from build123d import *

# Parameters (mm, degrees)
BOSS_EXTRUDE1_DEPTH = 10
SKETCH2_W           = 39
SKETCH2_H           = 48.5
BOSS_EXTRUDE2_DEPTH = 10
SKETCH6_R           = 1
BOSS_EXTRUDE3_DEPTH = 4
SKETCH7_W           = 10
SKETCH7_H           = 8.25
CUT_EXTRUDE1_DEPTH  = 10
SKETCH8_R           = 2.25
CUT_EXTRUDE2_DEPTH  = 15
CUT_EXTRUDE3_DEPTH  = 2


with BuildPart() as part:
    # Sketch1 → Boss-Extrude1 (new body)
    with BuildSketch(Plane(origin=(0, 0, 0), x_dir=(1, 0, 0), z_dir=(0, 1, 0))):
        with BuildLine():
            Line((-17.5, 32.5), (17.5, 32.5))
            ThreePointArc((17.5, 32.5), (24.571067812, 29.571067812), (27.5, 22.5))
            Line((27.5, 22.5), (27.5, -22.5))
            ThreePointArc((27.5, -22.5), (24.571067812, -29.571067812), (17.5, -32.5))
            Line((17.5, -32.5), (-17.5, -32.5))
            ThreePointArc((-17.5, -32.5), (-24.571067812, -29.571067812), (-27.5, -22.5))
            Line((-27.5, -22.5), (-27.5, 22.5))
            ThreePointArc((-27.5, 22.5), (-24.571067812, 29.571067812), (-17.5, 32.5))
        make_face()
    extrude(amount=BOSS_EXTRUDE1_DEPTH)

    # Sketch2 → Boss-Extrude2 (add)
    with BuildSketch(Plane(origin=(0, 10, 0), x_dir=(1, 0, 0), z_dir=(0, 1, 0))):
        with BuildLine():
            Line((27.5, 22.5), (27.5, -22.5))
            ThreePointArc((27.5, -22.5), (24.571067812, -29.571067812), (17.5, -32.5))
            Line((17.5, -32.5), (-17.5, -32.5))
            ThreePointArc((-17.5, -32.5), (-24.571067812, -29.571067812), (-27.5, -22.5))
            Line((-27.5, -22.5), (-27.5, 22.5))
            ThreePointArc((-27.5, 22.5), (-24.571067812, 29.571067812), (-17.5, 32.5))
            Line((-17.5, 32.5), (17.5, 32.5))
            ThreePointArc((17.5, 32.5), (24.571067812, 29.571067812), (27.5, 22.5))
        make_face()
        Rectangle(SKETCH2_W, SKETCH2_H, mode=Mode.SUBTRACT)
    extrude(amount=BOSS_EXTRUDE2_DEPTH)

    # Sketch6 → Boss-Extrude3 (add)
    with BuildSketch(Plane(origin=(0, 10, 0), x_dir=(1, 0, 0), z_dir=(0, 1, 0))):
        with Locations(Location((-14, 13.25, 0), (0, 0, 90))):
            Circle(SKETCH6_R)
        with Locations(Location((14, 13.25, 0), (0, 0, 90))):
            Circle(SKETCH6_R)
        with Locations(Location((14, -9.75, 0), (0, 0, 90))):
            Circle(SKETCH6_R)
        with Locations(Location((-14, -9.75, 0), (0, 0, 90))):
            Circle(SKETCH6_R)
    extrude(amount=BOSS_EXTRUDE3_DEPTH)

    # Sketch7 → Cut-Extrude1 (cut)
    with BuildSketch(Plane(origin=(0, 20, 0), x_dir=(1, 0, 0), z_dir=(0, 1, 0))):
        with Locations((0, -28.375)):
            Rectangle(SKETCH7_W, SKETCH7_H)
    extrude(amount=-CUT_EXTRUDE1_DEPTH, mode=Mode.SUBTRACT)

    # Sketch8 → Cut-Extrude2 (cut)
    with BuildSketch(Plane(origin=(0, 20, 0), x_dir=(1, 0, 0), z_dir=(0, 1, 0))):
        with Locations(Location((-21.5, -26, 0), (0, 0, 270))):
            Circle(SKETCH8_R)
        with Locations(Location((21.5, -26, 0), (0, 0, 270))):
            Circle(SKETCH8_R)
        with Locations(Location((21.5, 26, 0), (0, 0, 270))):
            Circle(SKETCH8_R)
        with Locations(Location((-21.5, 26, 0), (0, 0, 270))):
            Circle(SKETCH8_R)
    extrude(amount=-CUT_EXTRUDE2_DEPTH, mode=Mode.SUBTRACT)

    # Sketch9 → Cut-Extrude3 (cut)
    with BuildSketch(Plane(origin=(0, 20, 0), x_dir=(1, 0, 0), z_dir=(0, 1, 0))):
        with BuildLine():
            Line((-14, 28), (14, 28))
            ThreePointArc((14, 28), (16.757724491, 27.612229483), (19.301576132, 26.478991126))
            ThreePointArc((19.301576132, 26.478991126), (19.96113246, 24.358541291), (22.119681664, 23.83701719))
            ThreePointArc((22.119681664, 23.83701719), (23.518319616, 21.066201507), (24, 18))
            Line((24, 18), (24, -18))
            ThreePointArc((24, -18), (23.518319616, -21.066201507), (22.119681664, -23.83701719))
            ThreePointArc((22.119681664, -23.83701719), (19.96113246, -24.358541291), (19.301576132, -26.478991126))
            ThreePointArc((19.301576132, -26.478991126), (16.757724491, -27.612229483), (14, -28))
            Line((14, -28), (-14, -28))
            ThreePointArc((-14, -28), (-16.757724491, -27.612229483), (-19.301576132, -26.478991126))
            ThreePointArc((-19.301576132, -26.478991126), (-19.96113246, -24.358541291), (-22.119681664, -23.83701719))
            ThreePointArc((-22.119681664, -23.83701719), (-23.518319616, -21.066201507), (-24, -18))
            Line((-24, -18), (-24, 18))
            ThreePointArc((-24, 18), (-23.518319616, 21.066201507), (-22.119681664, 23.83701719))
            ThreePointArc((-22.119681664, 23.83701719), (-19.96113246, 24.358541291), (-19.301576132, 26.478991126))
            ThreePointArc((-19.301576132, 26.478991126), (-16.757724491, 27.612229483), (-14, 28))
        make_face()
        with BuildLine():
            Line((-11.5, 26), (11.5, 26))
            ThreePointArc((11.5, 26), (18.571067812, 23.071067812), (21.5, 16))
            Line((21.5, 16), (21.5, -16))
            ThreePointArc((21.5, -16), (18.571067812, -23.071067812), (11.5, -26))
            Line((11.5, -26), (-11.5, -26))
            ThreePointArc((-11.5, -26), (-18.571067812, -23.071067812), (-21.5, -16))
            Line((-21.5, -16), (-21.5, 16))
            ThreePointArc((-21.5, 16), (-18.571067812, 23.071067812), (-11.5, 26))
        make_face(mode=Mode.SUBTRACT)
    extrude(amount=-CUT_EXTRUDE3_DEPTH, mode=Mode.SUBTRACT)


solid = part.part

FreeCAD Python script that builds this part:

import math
import FreeCAD as App
import Part
import Sketcher

V = App.Vector


def add_polygon(sketch, points):
    """Adds a closed chain of lines whose ends are joined by coincident constraints."""
    first, n = sketch.GeometryCount, len(points)
    for a, b in zip(points, points[1:] + points[:1]):
        sketch.addGeometry(Part.LineSegment(App.Vector(*a, 0), App.Vector(*b, 0)), False)
    for i in range(n):
        sketch.addConstraint(Sketcher.Constraint("Coincident", first + i, 2, first + (i + 1) % n, 1))

doc = App.newDocument("Part")
body = doc.addObject("PartDesign::Body", "Body")

# Sketch on XZ plane
sketch1 = body.newObject("Sketcher::SketchObject", "Sketch")
sketch1.AttachmentSupport = (doc.getObject("XZ_Plane"), [""])
sketch1.MapMode = "FlatFace"
sketch1.addGeometry(Part.LineSegment(V(18, -32, 0), V(-18, -32, 0)), False)
sketch1.addGeometry(Part.ArcOfCircle(Part.Circle(V(-18, -22, 0), V(0, 0, 1), 10), math.radians(180), math.radians(270)), False)
sketch1.addGeometry(Part.LineSegment(V(-28, -22, 0), V(-28, 22, 0)), False)
sketch1.addGeometry(Part.ArcOfCircle(Part.Circle(V(-18, 22, 0), V(0, 0, 1), 10), math.radians(90), math.radians(180)), False)
sketch1.addGeometry(Part.LineSegment(V(-18, 32, 0), V(18, 32, 0)), False)
sketch1.addGeometry(Part.ArcOfCircle(Part.Circle(V(18, 22, 0), V(0, 0, 1), 10), math.radians(0), math.radians(90)), False)
sketch1.addGeometry(Part.LineSegment(V(28, 22, 0), V(28, -22, 0)), False)
sketch1.addGeometry(Part.ArcOfCircle(Part.Circle(V(18, -22, 0), V(0, 0, 1), 10), math.radians(-90), math.radians(0)), False)
sketch1.addConstraint(Sketcher.Constraint("Tangent", 0, 2, 1, 2))
sketch1.addConstraint(Sketcher.Constraint("Tangent", 1, 1, 2, 1))
sketch1.addConstraint(Sketcher.Constraint("Tangent", 2, 2, 3, 2))
sketch1.addConstraint(Sketcher.Constraint("Tangent", 3, 1, 4, 1))
sketch1.addConstraint(Sketcher.Constraint("Tangent", 4, 2, 5, 2))
sketch1.addConstraint(Sketcher.Constraint("Tangent", 5, 1, 6, 1))
sketch1.addConstraint(Sketcher.Constraint("Tangent", 6, 2, 7, 2))
sketch1.addConstraint(Sketcher.Constraint("Tangent", 7, 1, 0, 1))
sketch1.addConstraint(Sketcher.Constraint("Horizontal", 0))
sketch1.addConstraint(Sketcher.Constraint("Vertical", 2))
sketch1.addConstraint(Sketcher.Constraint("Horizontal", 4))
sketch1.addConstraint(Sketcher.Constraint("Vertical", 6))
sketch1.addConstraint(Sketcher.Constraint("Equal", 1, 3))
sketch1.addConstraint(Sketcher.Constraint("Equal", 3, 5))
sketch1.addConstraint(Sketcher.Constraint("Equal", 5, 7))
sketch1.addConstraint(Sketcher.Constraint("Symmetric", 1, 3, 5, 3, -1, 1))
sketch1.addConstraint(Sketcher.Constraint("Radius", 1, 10.0))
sketch1.addConstraint(Sketcher.Constraint("DistanceX", 0, 2, 0, 1, 35.0))
sketch1.addConstraint(Sketcher.Constraint("DistanceY", 2, 1, 2, 2, 45.0))
pad1 = body.newObject("PartDesign::Pad", "Pad")
pad1.Profile = sketch1
pad1.Length = 10
pad1.Reversed = True

# Sketch on XZ plane
sketch2 = body.newObject("Sketcher::SketchObject", "Sketch001")
sketch2.AttachmentSupport = (doc.getObject("XZ_Plane"), [""])
sketch2.MapMode = "FlatFace"
sketch2.AttachmentOffset = App.Placement(V(0, 0, -10), App.Rotation())
sketch2.addGeometry(Part.LineSegment(V(28, 22, 0), V(28, -22, 0)), False)  # 0
sketch2.addGeometry(Part.ArcOfCircle(Part.Circle(V(18, -22, 0), V(0, 0, 1), 10), math.radians(-90), math.radians(0)), False)  # 1
sketch2.addGeometry(Part.LineSegment(V(18, -32, 0), V(-18, -32, 0)), False)  # 2
sketch2.addGeometry(Part.ArcOfCircle(Part.Circle(V(-18, -22, 0), V(0, 0, 1), 10), math.radians(180), math.radians(270)), False)  # 3
sketch2.addGeometry(Part.LineSegment(V(-28, -22, 0), V(-28, 22, 0)), False)  # 4
sketch2.addGeometry(Part.ArcOfCircle(Part.Circle(V(-18, 22, 0), V(0, 0, 1), 10), math.radians(90), math.radians(180)), False)  # 5
sketch2.addGeometry(Part.LineSegment(V(-18, 32, 0), V(18, 32, 0)), False)  # 6
sketch2.addGeometry(Part.ArcOfCircle(Part.Circle(V(18, 22, 0), V(0, 0, 1), 10), math.radians(0), math.radians(90)), False)  # 7
add_polygon(sketch2, [(-20, 24), (-20, -24), (20, -24), (20, 24)])  # lines 8-11
sketch2.addConstraint(Sketcher.Constraint("Tangent", 0, 2, 1, 2))
sketch2.addConstraint(Sketcher.Constraint("Tangent", 1, 1, 2, 1))
sketch2.addConstraint(Sketcher.Constraint("Tangent", 2, 2, 3, 2))
sketch2.addConstraint(Sketcher.Constraint("Tangent", 3, 1, 4, 1))
sketch2.addConstraint(Sketcher.Constraint("Tangent", 4, 2, 5, 2))
sketch2.addConstraint(Sketcher.Constraint("Tangent", 5, 1, 6, 1))
sketch2.addConstraint(Sketcher.Constraint("Tangent", 6, 2, 7, 2))
sketch2.addConstraint(Sketcher.Constraint("Tangent", 7, 1, 0, 1))
sketch2.addConstraint(Sketcher.Constraint("Vertical", 0))
sketch2.addConstraint(Sketcher.Constraint("Horizontal", 2))
sketch2.addConstraint(Sketcher.Constraint("Vertical", 4))
sketch2.addConstraint(Sketcher.Constraint("Horizontal", 6))
sketch2.addConstraint(Sketcher.Constraint("Vertical", 8))
sketch2.addConstraint(Sketcher.Constraint("Horizontal", 9))
sketch2.addConstraint(Sketcher.Constraint("Vertical", 10))
sketch2.addConstraint(Sketcher.Constraint("Horizontal", 11))
sketch2.addConstraint(Sketcher.Constraint("Equal", 1, 3))
sketch2.addConstraint(Sketcher.Constraint("Equal", 3, 5))
sketch2.addConstraint(Sketcher.Constraint("Equal", 5, 7))
sketch2.addConstraint(Sketcher.Constraint("Symmetric", 1, 3, 5, 3, -1, 1))
sketch2.addConstraint(Sketcher.Constraint("Symmetric", 8, 2, 10, 2, -1, 1))
sketch2.addConstraint(Sketcher.Constraint("Radius", 1, 10.0))
sketch2.addConstraint(Sketcher.Constraint("DistanceX", 2, 2, 2, 1, 35.0))
sketch2.addConstraint(Sketcher.Constraint("DistanceX", 9, 1, 9, 2, 39.0))
sketch2.addConstraint(Sketcher.Constraint("DistanceY", 0, 2, 0, 1, 45.0))
sketch2.addConstraint(Sketcher.Constraint("DistanceY", 8, 2, 8, 1, 48.5))
pad2 = body.newObject("PartDesign::Pad", "Pad001")
pad2.Profile = sketch2
pad2.Length = 10
pad2.Reversed = True

# Sketch on XZ plane
sketch3 = body.newObject("Sketcher::SketchObject", "Sketch002")
sketch3.AttachmentSupport = (doc.getObject("XZ_Plane"), [""])
sketch3.MapMode = "FlatFace"
sketch3.AttachmentOffset = App.Placement(V(0, 0, -10), App.Rotation())
sketch3.addGeometry(Part.Circle(V(-14, -13.2, 0), V(0, 0, 1), 1), False)
sketch3.addGeometry(Part.Circle(V(14, -13.2, 0), V(0, 0, 1), 1), False)
sketch3.addGeometry(Part.Circle(V(14, 9.8, 0), V(0, 0, 1), 1), False)
sketch3.addGeometry(Part.Circle(V(-14, 9.8, 0), V(0, 0, 1), 1), False)
sketch3.addConstraint(Sketcher.Constraint("Equal", 0, 1))
sketch3.addConstraint(Sketcher.Constraint("Equal", 1, 2))
sketch3.addConstraint(Sketcher.Constraint("Equal", 2, 3))
sketch3.addConstraint(Sketcher.Constraint("Symmetric", 0, 3, 1, 3, -2))
sketch3.addConstraint(Sketcher.Constraint("Symmetric", 2, 3, 3, 3, -2))
sketch3.addConstraint(Sketcher.Constraint("Vertical", 1, 3, 2, 3))
sketch3.addConstraint(Sketcher.Constraint("Diameter", 0, 2.0))
sketch3.addConstraint(Sketcher.Constraint("DistanceX", 0, 3, -1, 1, 14.0))
sketch3.addConstraint(Sketcher.Constraint("DistanceY", 1, 3, 2, 3, 23.0))
sketch3.addConstraint(Sketcher.Constraint("DistanceY", 0, 3, -1, 1, 13.25))
pad3 = body.newObject("PartDesign::Pad", "Pad002")
pad3.Profile = sketch3
pad3.Length = 4
pad3.Reversed = True

# Sketch on XZ plane
sketch4 = body.newObject("Sketcher::SketchObject", "Sketch003")
sketch4.AttachmentSupport = (doc.getObject("XZ_Plane"), [""])
sketch4.MapMode = "FlatFace"
sketch4.AttachmentOffset = App.Placement(V(0, 0, -20), App.Rotation())
add_polygon(sketch4, [(-5, 24), (-5, 32), (5, 32), (5, 24)])  # lines 0-3
sketch4.addConstraint(Sketcher.Constraint("Vertical", 0))
sketch4.addConstraint(Sketcher.Constraint("Horizontal", 1))
sketch4.addConstraint(Sketcher.Constraint("Vertical", 2))
sketch4.addConstraint(Sketcher.Constraint("Horizontal", 3))
sketch4.addConstraint(Sketcher.Constraint("DistanceX", 1, 1, 1, 2, 10.0))
sketch4.addConstraint(Sketcher.Constraint("DistanceX", 0, 2, -1, 1, 5.0))
sketch4.addConstraint(Sketcher.Constraint("DistanceY", 0, 1, 0, 2, 8.25))
sketch4.addConstraint(Sketcher.Constraint("DistanceY", -1, 1, 0, 2, 32.5))
pocket1 = body.newObject("PartDesign::Pocket", "Pocket")
pocket1.Profile = sketch4
pocket1.Length = 10
pocket1.Reversed = True

# Sketch on XZ plane
sketch5 = body.newObject("Sketcher::SketchObject", "Sketch004")
sketch5.AttachmentSupport = (doc.getObject("XZ_Plane"), [""])
sketch5.MapMode = "FlatFace"
sketch5.AttachmentOffset = App.Placement(V(0, 0, -20), App.Rotation())
sketch5.addGeometry(Part.Circle(V(-21.5, 26, 0), V(0, 0, 1), 2.2), False)
sketch5.addGeometry(Part.Circle(V(21.5, 26, 0), V(0, 0, 1), 2.2), False)
sketch5.addGeometry(Part.Circle(V(21.5, -26, 0), V(0, 0, 1), 2.2), False)
sketch5.addGeometry(Part.Circle(V(-21.5, -26, 0), V(0, 0, 1), 2.2), False)
sketch5.addConstraint(Sketcher.Constraint("Equal", 0, 1))
sketch5.addConstraint(Sketcher.Constraint("Equal", 1, 2))
sketch5.addConstraint(Sketcher.Constraint("Equal", 2, 3))
sketch5.addConstraint(Sketcher.Constraint("Symmetric", 0, 3, 2, 3, -1, 1))
sketch5.addConstraint(Sketcher.Constraint("Symmetric", 1, 3, 3, 3, -1, 1))
sketch5.addConstraint(Sketcher.Constraint("Symmetric", 0, 3, 1, 3, -2))
sketch5.addConstraint(Sketcher.Constraint("Diameter", 0, 4.5))
sketch5.addConstraint(Sketcher.Constraint("DistanceY", -1, 1, 0, 3, 26.0))
sketch5.addConstraint(Sketcher.Constraint("DistanceX", 0, 3, 1, 3, 43.0))
pocket2 = body.newObject("PartDesign::Pocket", "Pocket001")
pocket2.Profile = sketch5
pocket2.Length = 15
pocket2.Reversed = True

# Sketch on XZ plane
sketch6 = body.newObject("Sketcher::SketchObject", "Sketch005")
sketch6.AttachmentSupport = (doc.getObject("XZ_Plane"), [""])
sketch6.MapMode = "FlatFace"
sketch6.AttachmentOffset = App.Placement(V(0, 0, -20), App.Rotation())
sketch6.addGeometry(Part.LineSegment(V(14, -28, 0), V(-14, -28, 0)), False)
sketch6.addGeometry(Part.ArcOfCircle(Part.Circle(V(-14, -18, 0), V(0, 0, 1), 10), math.radians(-122), math.radians(-90)), False)
sketch6.addGeometry(Part.ArcOfCircle(Part.Circle(V(-21.5, -26, 0), V(0, 0, 1), 2.3), math.radians(-12), math.radians(106)), False)
sketch6.addGeometry(Part.ArcOfCircle(Part.Circle(V(-14, -18, 0), V(0, 0, 1), 10), math.radians(-180), math.radians(-144)), False)
sketch6.addGeometry(Part.LineSegment(V(-24, -18, 0), V(-24, 18, 0)), False)
sketch6.addGeometry(Part.ArcOfCircle(Part.Circle(V(-14, 18, 0), V(0, 0, 1), 10), math.radians(144), math.radians(180)), False)
sketch6.addGeometry(Part.ArcOfCircle(Part.Circle(V(-21.5, 26, 0), V(0, 0, 1), 2.3), math.radians(-106), math.radians(12)), False)
sketch6.addGeometry(Part.ArcOfCircle(Part.Circle(V(-14, 18, 0), V(0, 0, 1), 10), math.radians(90), math.radians(122)), False)
sketch6.addGeometry(Part.LineSegment(V(-14, 28, 0), V(14, 28, 0)), False)
sketch6.addGeometry(Part.ArcOfCircle(Part.Circle(V(14, 18, 0), V(0, 0, 1), 10), math.radians(58), math.radians(90)), False)
sketch6.addGeometry(Part.ArcOfCircle(Part.Circle(V(21.5, 26, 0), V(0, 0, 1), 2.3), math.radians(168), math.radians(286)), False)
sketch6.addGeometry(Part.ArcOfCircle(Part.Circle(V(14, 18, 0), V(0, 0, 1), 10), math.radians(0), math.radians(36)), False)
sketch6.addGeometry(Part.LineSegment(V(24, 18, 0), V(24, -18, 0)), False)
sketch6.addGeometry(Part.ArcOfCircle(Part.Circle(V(14, -18, 0), V(0, 0, 1), 10), math.radians(-36), math.radians(0)), False)
sketch6.addGeometry(Part.ArcOfCircle(Part.Circle(V(21.5, -26, 0), V(0, 0, 1), 2.3), math.radians(74), math.radians(192)), False)
sketch6.addGeometry(Part.ArcOfCircle(Part.Circle(V(14, -18, 0), V(0, 0, 1), 10), math.radians(-90), math.radians(-58)), False)
sketch6.addGeometry(Part.LineSegment(V(-11.5, -26, 0), V(11.5, -26, 0)), False)
sketch6.addGeometry(Part.ArcOfCircle(Part.Circle(V(11.5, -16, 0), V(0, 0, 1), 10), math.radians(-90), math.radians(0)), False)
sketch6.addGeometry(Part.LineSegment(V(21.5, -16, 0), V(21.5, 16, 0)), False)
sketch6.addGeometry(Part.ArcOfCircle(Part.Circle(V(11.5, 16, 0), V(0, 0, 1), 10), math.radians(0), math.radians(90)), False)
sketch6.addGeometry(Part.LineSegment(V(11.5, 26, 0), V(-11.5, 26, 0)), False)
sketch6.addGeometry(Part.ArcOfCircle(Part.Circle(V(-11.5, 16, 0), V(0, 0, 1), 10), math.radians(90), math.radians(180)), False)
sketch6.addGeometry(Part.LineSegment(V(-21.5, 16, 0), V(-21.5, -16, 0)), False)
sketch6.addGeometry(Part.ArcOfCircle(Part.Circle(V(-11.5, -16, 0), V(0, 0, 1), 10), math.radians(180), math.radians(270)), False)
sketch6.addConstraint(Sketcher.Constraint("Tangent", 0, 2, 1, 2))
sketch6.addConstraint(Sketcher.Constraint("Coincident", 1, 1, 2, 1))
sketch6.addConstraint(Sketcher.Constraint("Coincident", 2, 2, 3, 2))
sketch6.addConstraint(Sketcher.Constraint("Tangent", 3, 1, 4, 1))
sketch6.addConstraint(Sketcher.Constraint("Tangent", 4, 2, 5, 2))
sketch6.addConstraint(Sketcher.Constraint("Coincident", 5, 1, 6, 1))
sketch6.addConstraint(Sketcher.Constraint("Coincident", 6, 2, 7, 2))
sketch6.addConstraint(Sketcher.Constraint("Tangent", 7, 1, 8, 1))
sketch6.addConstraint(Sketcher.Constraint("Tangent", 8, 2, 9, 2))
sketch6.addConstraint(Sketcher.Constraint("Coincident", 9, 1, 10, 1))
sketch6.addConstraint(Sketcher.Constraint("Coincident", 10, 2, 11, 2))
sketch6.addConstraint(Sketcher.Constraint("Tangent", 11, 1, 12, 1))
sketch6.addConstraint(Sketcher.Constraint("Tangent", 12, 2, 13, 2))
sketch6.addConstraint(Sketcher.Constraint("Coincident", 13, 1, 14, 1))
sketch6.addConstraint(Sketcher.Constraint("Coincident", 14, 2, 15, 2))
sketch6.addConstraint(Sketcher.Constraint("Tangent", 15, 1, 0, 1))
sketch6.addConstraint(Sketcher.Constraint("Tangent", 16, 2, 17, 1))
sketch6.addConstraint(Sketcher.Constraint("Tangent", 17, 2, 18, 1))
sketch6.addConstraint(Sketcher.Constraint("Tangent", 18, 2, 19, 1))
sketch6.addConstraint(Sketcher.Constraint("Tangent", 19, 2, 20, 1))
sketch6.addConstraint(Sketcher.Constraint("Tangent", 20, 2, 21, 1))
sketch6.addConstraint(Sketcher.Constraint("Tangent", 21, 2, 22, 1))
sketch6.addConstraint(Sketcher.Constraint("Tangent", 22, 2, 23, 1))
sketch6.addConstraint(Sketcher.Constraint("Tangent", 23, 2, 16, 1))
sketch6.addConstraint(Sketcher.Constraint("Horizontal", 0))
sketch6.addConstraint(Sketcher.Constraint("Vertical", 4))
sketch6.addConstraint(Sketcher.Constraint("Horizontal", 8))
sketch6.addConstraint(Sketcher.Constraint("Vertical", 12))
sketch6.addConstraint(Sketcher.Constraint("Horizontal", 16))
sketch6.addConstraint(Sketcher.Constraint("Vertical", 18))
sketch6.addConstraint(Sketcher.Constraint("Horizontal", 20))
sketch6.addConstraint(Sketcher.Constraint("Vertical", 22))
sketch6.addConstraint(Sketcher.Constraint("Coincident", 3, 3, 1, 3))
sketch6.addConstraint(Sketcher.Constraint("Coincident", 7, 3, 5, 3))
sketch6.addConstraint(Sketcher.Constraint("Coincident", 11, 3, 9, 3))
sketch6.addConstraint(Sketcher.Constraint("Coincident", 15, 3, 13, 3))
sketch6.addConstraint(Sketcher.Constraint("Equal", 1, 3))
sketch6.addConstraint(Sketcher.Constraint("Equal", 3, 5))
sketch6.addConstraint(Sketcher.Constraint("Equal", 2, 6))
sketch6.addConstraint(Sketcher.Constraint("Equal", 5, 7))
sketch6.addConstraint(Sketcher.Constraint("Equal", 7, 9))
sketch6.addConstraint(Sketcher.Constraint("Equal", 6, 10))
sketch6.addConstraint(Sketcher.Constraint("Equal", 9, 11))
sketch6.addConstraint(Sketcher.Constraint("Equal", 11, 13))
sketch6.addConstraint(Sketcher.Constraint("Equal", 10, 14))
sketch6.addConstraint(Sketcher.Constraint("Equal", 13, 15))
sketch6.addConstraint(Sketcher.Constraint("Equal", 15, 17))
sketch6.addConstraint(Sketcher.Constraint("Equal", 17, 19))
sketch6.addConstraint(Sketcher.Constraint("Equal", 19, 21))
sketch6.addConstraint(Sketcher.Constraint("Equal", 21, 23))
sketch6.addConstraint(Sketcher.Constraint("Symmetric", 1, 3, 9, 3, -1, 1))
sketch6.addConstraint(Sketcher.Constraint("Symmetric", 2, 3, 10, 3, -1, 1))
sketch6.addConstraint(Sketcher.Constraint("Symmetric", 6, 3, 14, 3, -1, 1))
sketch6.addConstraint(Sketcher.Constraint("Symmetric", 17, 3, 21, 3, -1, 1))
sketch6.addConstraint(Sketcher.Constraint("Symmetric", 6, 3, 10, 3, -2))
sketch6.addConstraint(Sketcher.Constraint("Horizontal", 14, 3, 16, 2))
sketch6.addConstraint(Sketcher.Constraint("Vertical", 14, 3, 17, 2))
sketch6.addConstraint(Sketcher.Constraint("Radius", 1, 10.0))
sketch6.addConstraint(Sketcher.Constraint("DistanceX", 0, 2, 0, 1, 28.0))
sketch6.addConstraint(Sketcher.Constraint("DistanceX", 16, 1, 16, 2, 23.0))
sketch6.addConstraint(Sketcher.Constraint("DistanceY", 4, 1, 4, 2, 36.0))
sketch6.addConstraint(Sketcher.Constraint("DistanceY", 18, 1, 18, 2, 32.0))
sketch6.addConstraint(Sketcher.Constraint("Radius", 2, 2.25))
pocket3 = body.newObject("PartDesign::Pocket", "Pocket002")
pocket3.Profile = sketch6
pocket3.Length = 2
pocket3.Reversed = True

doc.recompute()
